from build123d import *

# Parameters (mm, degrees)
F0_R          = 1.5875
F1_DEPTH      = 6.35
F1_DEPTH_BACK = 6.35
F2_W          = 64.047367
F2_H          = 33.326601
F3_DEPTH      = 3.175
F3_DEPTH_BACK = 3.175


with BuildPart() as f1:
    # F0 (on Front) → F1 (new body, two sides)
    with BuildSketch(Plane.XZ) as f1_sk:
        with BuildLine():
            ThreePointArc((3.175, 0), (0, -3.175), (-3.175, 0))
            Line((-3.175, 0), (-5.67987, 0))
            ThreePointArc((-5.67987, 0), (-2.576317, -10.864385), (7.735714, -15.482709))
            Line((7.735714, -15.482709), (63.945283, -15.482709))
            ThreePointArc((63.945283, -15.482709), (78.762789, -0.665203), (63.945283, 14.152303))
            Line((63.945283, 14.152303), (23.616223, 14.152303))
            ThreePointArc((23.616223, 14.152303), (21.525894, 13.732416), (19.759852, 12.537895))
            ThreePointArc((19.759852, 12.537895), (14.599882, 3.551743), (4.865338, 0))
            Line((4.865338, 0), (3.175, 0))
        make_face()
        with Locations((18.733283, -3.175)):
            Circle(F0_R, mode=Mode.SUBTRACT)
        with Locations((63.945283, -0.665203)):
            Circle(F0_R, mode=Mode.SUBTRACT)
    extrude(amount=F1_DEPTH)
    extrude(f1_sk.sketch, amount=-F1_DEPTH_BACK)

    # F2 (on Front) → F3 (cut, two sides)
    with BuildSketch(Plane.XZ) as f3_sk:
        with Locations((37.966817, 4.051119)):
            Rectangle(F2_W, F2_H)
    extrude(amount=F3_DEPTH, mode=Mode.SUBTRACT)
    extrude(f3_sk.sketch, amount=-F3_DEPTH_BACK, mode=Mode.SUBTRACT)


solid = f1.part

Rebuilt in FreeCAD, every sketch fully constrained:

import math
import FreeCAD as App
import Part
import Sketcher
Q = App.Units.Quantity


def add_polygon(sketch, points):
    """Adds a closed chain of lines whose ends are joined by coincident constraints."""
    first, n = sketch.GeometryCount, len(points)
    for a, b in zip(points, points[1:] + points[:1]):
        sketch.addGeometry(Part.LineSegment(App.Vector(*a, 0), App.Vector(*b, 0)), False)
    for i in range(n):
        sketch.addConstraint(Sketcher.Constraint("Coincident", first + i, 2, first + (i + 1) % n, 1))

doc = App.newDocument("Part")
body = doc.addObject("PartDesign::Body", "Body")

sketch1 = doc.addObject("Sketcher::SketchObject", "Sketch")
body.addObject(sketch1)
sketch1.AttachmentSupport = (doc.XZ_Plane, [""])
sketch1.MapMode = "FlatFace"
sketch1.addGeometry([
    Part.ArcOfCircle(Part.Circle(App.Vector(0, 0, 0), App.Vector(0, 0, 1), 3.175), math.radians(180), math.radians(360)),
    Part.LineSegment(App.Vector(-3.175, 0, 0), App.Vector(-5.67987, 0, 0)),
    Part.ArcOfCircle(Part.Circle(App.Vector(7.539426, -2.099214, 0), App.Vector(0, 0, 1), 13.384935), math.radians(170.976818), math.radians(270.840266)),
    Part.LineSegment(App.Vector(7.735714, -15.482709, 0), App.Vector(63.945283, -15.482709, 0)),
    Part.ArcOfCircle(Part.Circle(App.Vector(63.945283, -0.665203, 0), App.Vector(0, 0, 1), 14.817506), math.radians(-90), math.radians(90)),
    Part.LineSegment(App.Vector(63.945283, 14.152303, 0), App.Vector(23.616223, 14.152303, 0)),
    Part.ArcOfCircle(Part.Circle(App.Vector(23.616224, 8.739199, 0), App.Vector(0, 0, 1), 5.413104), math.radians(90.000009), math.radians(135.431677)),
    Part.ArcOfCircle(Part.Circle(App.Vector(4.865339, 15.115988, 0), App.Vector(0, 0, 1), 15.115988), math.radians(-90.000004), math.radians(-9.820033)),
    Part.LineSegment(App.Vector(4.865338, 0, 0), App.Vector(3.175, 0, 0)),
    Part.Circle(App.Vector(18.733283, -3.175, 0), App.Vector(0, 0, 1), 1.5875),
    Part.Circle(App.Vector(63.945283, -0.665203, 0), App.Vector(0, 0, 1), 1.5875),
], False)
sketch1.addConstraint([
    Sketcher.Constraint("Coincident", 0, 1, 1, 1),
    Sketcher.Constraint("Coincident", 1, 2, 2, 1),
    Sketcher.Constraint("Coincident", 2, 2, 3, 1),
    Sketcher.Constraint("Tangent", 3, 2, 4, 1),
    Sketcher.Constraint("Tangent", 4, 2, 5, 1),
    Sketcher.Constraint("Tangent", 5, 2, 6, 1),
    Sketcher.Constraint("Coincident", 6, 2, 7, 2),
    Sketcher.Constraint("Tangent", 7, 1, 8, 1),
    Sketcher.Constraint("Coincident", 8, 2, 0, 2),
    Sketcher.Constraint("Horizontal", 1),
    Sketcher.Constraint("Horizontal", 3),
    Sketcher.Constraint("Horizontal", 5),
    Sketcher.Constraint("Horizontal", 8),
    Sketcher.Constraint("Coincident", 0, 3, -1, 1),
    Sketcher.Constraint("Coincident", 10, 3, 4, 3),
    Sketcher.Constraint("Equal", 9, 10),
    Sketcher.Constraint("PointOnObject", 0, 1, -1),
    Sketcher.Constraint("PointOnObject", 7, 1, -1),
    Sketcher.Constraint("Diameter", 9, Q("0.125 in")),
    Sketcher.Constraint("Radius", 0, Q("0.125 in")),
    Sketcher.Constraint("DistanceX", 9, 3, 4, 3, Q("1.78 in")),
    Sketcher.Constraint("DistanceY", 9, 3, -1, 1, Q("0.125 in")),
    Sketcher.Constraint("Radius", 2, Q("13.384935 mm")),
    Sketcher.Constraint("Radius", 4, Q("14.817506 mm")),
    Sketcher.Constraint("Radius", 6, Q("5.413104 mm")),
    Sketcher.Constraint("Radius", 7, Q("15.115988 mm")),
    Sketcher.Constraint("DistanceX", 1, 2, 1, 1, Q("2.50487 mm")),
    Sketcher.Constraint("DistanceX", 3, 1, 3, 2, Q("56.209569 mm")),
    Sketcher.Constraint("DistanceX", 5, 2, 5, 1, Q("40.32906 mm")),
    Sketcher.Constraint("DistanceX", 8, 2, 8, 1, Q("1.690338 mm")),
    Sketcher.Constraint("DistanceY", -1, 1, 6, 3, Q("8.739199 mm")),
    Sketcher.Constraint("DistanceX", 2, 3, 6, 3, Q("16.076798 mm")),
])
pad1 = doc.addObject("PartDesign::Pad", "Pad")
body.addObject(pad1)
pad1.Profile = sketch1
pad1.Type = "TwoLengths"
pad1.Length = Q("0.25 in")
pad1.Length2 = Q("0.25 in")

sketch2 = doc.addObject("Sketcher::SketchObject", "Sketch001")
body.addObject(sketch2)
sketch2.AttachmentSupport = (doc.XZ_Plane, [""])
sketch2.MapMode = "FlatFace"
add_polygon(sketch2, [(5.943134, 20.71442), (5.943134, -12.612182), (69.9905, -12.612182), (69.9905, 20.71442)])
sketch2.addConstraint([
    Sketcher.Constraint("Vertical", 0),
    Sketcher.Constraint("Horizontal", 1),
    Sketcher.Constraint("Vertical", 2),
    Sketcher.Constraint("Horizontal", 3),
    Sketcher.Constraint("DistanceY", 0, 2, 0, 1, Q("33.326601 mm")),
    Sketcher.Constraint("DistanceX", -1, 1, 1, 2, Q("69.9905 mm")),
    Sketcher.Constraint("DistanceX", 1, 1, 1, 2, Q("64.047367 mm")),
    Sketcher.Constraint("DistanceY", 0, 2, -1, 1, Q("12.612182 mm")),
])
pocket1 = doc.addObject("PartDesign::Pocket", "Pocket")
body.addObject(pocket1)
pocket1.Profile = sketch2
pocket1.Type = "TwoLengths"
pocket1.Length = Q("0.125 in")
pocket1.Length2 = Q("0.125 in")
pocket1.Reversed = True

doc.recompute()
